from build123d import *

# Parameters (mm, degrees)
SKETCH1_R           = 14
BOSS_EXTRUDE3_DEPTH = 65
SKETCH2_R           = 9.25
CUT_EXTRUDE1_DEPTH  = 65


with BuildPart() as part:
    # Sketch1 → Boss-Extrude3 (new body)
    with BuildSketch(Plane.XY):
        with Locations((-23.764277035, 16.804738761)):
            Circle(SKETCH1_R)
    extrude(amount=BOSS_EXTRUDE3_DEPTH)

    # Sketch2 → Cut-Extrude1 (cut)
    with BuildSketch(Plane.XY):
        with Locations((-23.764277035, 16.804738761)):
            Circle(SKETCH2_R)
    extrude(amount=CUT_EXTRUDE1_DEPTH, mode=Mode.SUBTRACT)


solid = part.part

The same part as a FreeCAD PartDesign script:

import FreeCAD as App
import Part
import Sketcher
from FreeCAD import Vector

doc = App.newDocument("Part")
params = doc.addObject("Spreadsheet::Sheet", "Params")
for row, (alias, value) in enumerate([
    ("sketch1_diameter", "28 mm"),
    ("pad1_length", "65 mm"),
    ("sketch2_diameter", "18.5 mm"),
    ("pocket1_length", "65 mm"),
], start=1):
    params.set(f"A{row}", alias)
    params.set(f"B{row}", "=" + value)
    params.setAlias(f"B{row}", alias)

body = doc.addObject("PartDesign::Body", "Body")

# Sketch on XY plane
sketch1 = body.newObject("Sketcher::SketchObject", "Sketch")
sketch1.AttachmentSupport = (doc.getObject("XY_Plane"), [""])
sketch1.MapMode = "FlatFace"
sketch1.addGeometry(Part.Circle(Vector(-24, 17, 0), Vector(0, 0, 1), 14), False)
sketch1.addConstraint(Sketcher.Constraint("Diameter", 0, 28.0))
sketch1.addConstraint(Sketcher.Constraint("DistanceY", -1, 1, 0, 3, 16.804739))
sketch1.addConstraint(Sketcher.Constraint("DistanceX", 0, 3, -1, 1, 23.764277))
sketch1.setExpression("Constraints[0]", "Params.sketch1_diameter")
pad1 = body.newObject("PartDesign::Pad", "Pad")
pad1.Profile = sketch1
pad1.setExpression("Length", "Params.pad1_length")

# Sketch on XY plane
sketch2 = body.newObject("Sketcher::SketchObject", "Sketch001")
sketch2.AttachmentSupport = (doc.getObject("XY_Plane"), [""])
sketch2.MapMode = "FlatFace"
sketch2.addGeometry(Part.Circle(Vector(-24, 17, 0), Vector(0, 0, 1), 9), False)
sketch2.addConstraint(Sketcher.Constraint("Diameter", 0, 18.5))
sketch2.addConstraint(Sketcher.Constraint("DistanceY", -1, 1, 0, 3, 16.804739))
sketch2.addConstraint(Sketcher.Constraint("DistanceX", 0, 3, -1, 1, 23.764277))
sketch2.setExpression("Constraints[0]", "Params.sketch2_diameter")
pocket1 = body.newObject("PartDesign::Pocket", "Pocket")
pocket1.Profile = sketch2
pocket1.setExpression("Length", "Params.pocket1_length")
pocket1.Reversed = True

doc.recompute()
